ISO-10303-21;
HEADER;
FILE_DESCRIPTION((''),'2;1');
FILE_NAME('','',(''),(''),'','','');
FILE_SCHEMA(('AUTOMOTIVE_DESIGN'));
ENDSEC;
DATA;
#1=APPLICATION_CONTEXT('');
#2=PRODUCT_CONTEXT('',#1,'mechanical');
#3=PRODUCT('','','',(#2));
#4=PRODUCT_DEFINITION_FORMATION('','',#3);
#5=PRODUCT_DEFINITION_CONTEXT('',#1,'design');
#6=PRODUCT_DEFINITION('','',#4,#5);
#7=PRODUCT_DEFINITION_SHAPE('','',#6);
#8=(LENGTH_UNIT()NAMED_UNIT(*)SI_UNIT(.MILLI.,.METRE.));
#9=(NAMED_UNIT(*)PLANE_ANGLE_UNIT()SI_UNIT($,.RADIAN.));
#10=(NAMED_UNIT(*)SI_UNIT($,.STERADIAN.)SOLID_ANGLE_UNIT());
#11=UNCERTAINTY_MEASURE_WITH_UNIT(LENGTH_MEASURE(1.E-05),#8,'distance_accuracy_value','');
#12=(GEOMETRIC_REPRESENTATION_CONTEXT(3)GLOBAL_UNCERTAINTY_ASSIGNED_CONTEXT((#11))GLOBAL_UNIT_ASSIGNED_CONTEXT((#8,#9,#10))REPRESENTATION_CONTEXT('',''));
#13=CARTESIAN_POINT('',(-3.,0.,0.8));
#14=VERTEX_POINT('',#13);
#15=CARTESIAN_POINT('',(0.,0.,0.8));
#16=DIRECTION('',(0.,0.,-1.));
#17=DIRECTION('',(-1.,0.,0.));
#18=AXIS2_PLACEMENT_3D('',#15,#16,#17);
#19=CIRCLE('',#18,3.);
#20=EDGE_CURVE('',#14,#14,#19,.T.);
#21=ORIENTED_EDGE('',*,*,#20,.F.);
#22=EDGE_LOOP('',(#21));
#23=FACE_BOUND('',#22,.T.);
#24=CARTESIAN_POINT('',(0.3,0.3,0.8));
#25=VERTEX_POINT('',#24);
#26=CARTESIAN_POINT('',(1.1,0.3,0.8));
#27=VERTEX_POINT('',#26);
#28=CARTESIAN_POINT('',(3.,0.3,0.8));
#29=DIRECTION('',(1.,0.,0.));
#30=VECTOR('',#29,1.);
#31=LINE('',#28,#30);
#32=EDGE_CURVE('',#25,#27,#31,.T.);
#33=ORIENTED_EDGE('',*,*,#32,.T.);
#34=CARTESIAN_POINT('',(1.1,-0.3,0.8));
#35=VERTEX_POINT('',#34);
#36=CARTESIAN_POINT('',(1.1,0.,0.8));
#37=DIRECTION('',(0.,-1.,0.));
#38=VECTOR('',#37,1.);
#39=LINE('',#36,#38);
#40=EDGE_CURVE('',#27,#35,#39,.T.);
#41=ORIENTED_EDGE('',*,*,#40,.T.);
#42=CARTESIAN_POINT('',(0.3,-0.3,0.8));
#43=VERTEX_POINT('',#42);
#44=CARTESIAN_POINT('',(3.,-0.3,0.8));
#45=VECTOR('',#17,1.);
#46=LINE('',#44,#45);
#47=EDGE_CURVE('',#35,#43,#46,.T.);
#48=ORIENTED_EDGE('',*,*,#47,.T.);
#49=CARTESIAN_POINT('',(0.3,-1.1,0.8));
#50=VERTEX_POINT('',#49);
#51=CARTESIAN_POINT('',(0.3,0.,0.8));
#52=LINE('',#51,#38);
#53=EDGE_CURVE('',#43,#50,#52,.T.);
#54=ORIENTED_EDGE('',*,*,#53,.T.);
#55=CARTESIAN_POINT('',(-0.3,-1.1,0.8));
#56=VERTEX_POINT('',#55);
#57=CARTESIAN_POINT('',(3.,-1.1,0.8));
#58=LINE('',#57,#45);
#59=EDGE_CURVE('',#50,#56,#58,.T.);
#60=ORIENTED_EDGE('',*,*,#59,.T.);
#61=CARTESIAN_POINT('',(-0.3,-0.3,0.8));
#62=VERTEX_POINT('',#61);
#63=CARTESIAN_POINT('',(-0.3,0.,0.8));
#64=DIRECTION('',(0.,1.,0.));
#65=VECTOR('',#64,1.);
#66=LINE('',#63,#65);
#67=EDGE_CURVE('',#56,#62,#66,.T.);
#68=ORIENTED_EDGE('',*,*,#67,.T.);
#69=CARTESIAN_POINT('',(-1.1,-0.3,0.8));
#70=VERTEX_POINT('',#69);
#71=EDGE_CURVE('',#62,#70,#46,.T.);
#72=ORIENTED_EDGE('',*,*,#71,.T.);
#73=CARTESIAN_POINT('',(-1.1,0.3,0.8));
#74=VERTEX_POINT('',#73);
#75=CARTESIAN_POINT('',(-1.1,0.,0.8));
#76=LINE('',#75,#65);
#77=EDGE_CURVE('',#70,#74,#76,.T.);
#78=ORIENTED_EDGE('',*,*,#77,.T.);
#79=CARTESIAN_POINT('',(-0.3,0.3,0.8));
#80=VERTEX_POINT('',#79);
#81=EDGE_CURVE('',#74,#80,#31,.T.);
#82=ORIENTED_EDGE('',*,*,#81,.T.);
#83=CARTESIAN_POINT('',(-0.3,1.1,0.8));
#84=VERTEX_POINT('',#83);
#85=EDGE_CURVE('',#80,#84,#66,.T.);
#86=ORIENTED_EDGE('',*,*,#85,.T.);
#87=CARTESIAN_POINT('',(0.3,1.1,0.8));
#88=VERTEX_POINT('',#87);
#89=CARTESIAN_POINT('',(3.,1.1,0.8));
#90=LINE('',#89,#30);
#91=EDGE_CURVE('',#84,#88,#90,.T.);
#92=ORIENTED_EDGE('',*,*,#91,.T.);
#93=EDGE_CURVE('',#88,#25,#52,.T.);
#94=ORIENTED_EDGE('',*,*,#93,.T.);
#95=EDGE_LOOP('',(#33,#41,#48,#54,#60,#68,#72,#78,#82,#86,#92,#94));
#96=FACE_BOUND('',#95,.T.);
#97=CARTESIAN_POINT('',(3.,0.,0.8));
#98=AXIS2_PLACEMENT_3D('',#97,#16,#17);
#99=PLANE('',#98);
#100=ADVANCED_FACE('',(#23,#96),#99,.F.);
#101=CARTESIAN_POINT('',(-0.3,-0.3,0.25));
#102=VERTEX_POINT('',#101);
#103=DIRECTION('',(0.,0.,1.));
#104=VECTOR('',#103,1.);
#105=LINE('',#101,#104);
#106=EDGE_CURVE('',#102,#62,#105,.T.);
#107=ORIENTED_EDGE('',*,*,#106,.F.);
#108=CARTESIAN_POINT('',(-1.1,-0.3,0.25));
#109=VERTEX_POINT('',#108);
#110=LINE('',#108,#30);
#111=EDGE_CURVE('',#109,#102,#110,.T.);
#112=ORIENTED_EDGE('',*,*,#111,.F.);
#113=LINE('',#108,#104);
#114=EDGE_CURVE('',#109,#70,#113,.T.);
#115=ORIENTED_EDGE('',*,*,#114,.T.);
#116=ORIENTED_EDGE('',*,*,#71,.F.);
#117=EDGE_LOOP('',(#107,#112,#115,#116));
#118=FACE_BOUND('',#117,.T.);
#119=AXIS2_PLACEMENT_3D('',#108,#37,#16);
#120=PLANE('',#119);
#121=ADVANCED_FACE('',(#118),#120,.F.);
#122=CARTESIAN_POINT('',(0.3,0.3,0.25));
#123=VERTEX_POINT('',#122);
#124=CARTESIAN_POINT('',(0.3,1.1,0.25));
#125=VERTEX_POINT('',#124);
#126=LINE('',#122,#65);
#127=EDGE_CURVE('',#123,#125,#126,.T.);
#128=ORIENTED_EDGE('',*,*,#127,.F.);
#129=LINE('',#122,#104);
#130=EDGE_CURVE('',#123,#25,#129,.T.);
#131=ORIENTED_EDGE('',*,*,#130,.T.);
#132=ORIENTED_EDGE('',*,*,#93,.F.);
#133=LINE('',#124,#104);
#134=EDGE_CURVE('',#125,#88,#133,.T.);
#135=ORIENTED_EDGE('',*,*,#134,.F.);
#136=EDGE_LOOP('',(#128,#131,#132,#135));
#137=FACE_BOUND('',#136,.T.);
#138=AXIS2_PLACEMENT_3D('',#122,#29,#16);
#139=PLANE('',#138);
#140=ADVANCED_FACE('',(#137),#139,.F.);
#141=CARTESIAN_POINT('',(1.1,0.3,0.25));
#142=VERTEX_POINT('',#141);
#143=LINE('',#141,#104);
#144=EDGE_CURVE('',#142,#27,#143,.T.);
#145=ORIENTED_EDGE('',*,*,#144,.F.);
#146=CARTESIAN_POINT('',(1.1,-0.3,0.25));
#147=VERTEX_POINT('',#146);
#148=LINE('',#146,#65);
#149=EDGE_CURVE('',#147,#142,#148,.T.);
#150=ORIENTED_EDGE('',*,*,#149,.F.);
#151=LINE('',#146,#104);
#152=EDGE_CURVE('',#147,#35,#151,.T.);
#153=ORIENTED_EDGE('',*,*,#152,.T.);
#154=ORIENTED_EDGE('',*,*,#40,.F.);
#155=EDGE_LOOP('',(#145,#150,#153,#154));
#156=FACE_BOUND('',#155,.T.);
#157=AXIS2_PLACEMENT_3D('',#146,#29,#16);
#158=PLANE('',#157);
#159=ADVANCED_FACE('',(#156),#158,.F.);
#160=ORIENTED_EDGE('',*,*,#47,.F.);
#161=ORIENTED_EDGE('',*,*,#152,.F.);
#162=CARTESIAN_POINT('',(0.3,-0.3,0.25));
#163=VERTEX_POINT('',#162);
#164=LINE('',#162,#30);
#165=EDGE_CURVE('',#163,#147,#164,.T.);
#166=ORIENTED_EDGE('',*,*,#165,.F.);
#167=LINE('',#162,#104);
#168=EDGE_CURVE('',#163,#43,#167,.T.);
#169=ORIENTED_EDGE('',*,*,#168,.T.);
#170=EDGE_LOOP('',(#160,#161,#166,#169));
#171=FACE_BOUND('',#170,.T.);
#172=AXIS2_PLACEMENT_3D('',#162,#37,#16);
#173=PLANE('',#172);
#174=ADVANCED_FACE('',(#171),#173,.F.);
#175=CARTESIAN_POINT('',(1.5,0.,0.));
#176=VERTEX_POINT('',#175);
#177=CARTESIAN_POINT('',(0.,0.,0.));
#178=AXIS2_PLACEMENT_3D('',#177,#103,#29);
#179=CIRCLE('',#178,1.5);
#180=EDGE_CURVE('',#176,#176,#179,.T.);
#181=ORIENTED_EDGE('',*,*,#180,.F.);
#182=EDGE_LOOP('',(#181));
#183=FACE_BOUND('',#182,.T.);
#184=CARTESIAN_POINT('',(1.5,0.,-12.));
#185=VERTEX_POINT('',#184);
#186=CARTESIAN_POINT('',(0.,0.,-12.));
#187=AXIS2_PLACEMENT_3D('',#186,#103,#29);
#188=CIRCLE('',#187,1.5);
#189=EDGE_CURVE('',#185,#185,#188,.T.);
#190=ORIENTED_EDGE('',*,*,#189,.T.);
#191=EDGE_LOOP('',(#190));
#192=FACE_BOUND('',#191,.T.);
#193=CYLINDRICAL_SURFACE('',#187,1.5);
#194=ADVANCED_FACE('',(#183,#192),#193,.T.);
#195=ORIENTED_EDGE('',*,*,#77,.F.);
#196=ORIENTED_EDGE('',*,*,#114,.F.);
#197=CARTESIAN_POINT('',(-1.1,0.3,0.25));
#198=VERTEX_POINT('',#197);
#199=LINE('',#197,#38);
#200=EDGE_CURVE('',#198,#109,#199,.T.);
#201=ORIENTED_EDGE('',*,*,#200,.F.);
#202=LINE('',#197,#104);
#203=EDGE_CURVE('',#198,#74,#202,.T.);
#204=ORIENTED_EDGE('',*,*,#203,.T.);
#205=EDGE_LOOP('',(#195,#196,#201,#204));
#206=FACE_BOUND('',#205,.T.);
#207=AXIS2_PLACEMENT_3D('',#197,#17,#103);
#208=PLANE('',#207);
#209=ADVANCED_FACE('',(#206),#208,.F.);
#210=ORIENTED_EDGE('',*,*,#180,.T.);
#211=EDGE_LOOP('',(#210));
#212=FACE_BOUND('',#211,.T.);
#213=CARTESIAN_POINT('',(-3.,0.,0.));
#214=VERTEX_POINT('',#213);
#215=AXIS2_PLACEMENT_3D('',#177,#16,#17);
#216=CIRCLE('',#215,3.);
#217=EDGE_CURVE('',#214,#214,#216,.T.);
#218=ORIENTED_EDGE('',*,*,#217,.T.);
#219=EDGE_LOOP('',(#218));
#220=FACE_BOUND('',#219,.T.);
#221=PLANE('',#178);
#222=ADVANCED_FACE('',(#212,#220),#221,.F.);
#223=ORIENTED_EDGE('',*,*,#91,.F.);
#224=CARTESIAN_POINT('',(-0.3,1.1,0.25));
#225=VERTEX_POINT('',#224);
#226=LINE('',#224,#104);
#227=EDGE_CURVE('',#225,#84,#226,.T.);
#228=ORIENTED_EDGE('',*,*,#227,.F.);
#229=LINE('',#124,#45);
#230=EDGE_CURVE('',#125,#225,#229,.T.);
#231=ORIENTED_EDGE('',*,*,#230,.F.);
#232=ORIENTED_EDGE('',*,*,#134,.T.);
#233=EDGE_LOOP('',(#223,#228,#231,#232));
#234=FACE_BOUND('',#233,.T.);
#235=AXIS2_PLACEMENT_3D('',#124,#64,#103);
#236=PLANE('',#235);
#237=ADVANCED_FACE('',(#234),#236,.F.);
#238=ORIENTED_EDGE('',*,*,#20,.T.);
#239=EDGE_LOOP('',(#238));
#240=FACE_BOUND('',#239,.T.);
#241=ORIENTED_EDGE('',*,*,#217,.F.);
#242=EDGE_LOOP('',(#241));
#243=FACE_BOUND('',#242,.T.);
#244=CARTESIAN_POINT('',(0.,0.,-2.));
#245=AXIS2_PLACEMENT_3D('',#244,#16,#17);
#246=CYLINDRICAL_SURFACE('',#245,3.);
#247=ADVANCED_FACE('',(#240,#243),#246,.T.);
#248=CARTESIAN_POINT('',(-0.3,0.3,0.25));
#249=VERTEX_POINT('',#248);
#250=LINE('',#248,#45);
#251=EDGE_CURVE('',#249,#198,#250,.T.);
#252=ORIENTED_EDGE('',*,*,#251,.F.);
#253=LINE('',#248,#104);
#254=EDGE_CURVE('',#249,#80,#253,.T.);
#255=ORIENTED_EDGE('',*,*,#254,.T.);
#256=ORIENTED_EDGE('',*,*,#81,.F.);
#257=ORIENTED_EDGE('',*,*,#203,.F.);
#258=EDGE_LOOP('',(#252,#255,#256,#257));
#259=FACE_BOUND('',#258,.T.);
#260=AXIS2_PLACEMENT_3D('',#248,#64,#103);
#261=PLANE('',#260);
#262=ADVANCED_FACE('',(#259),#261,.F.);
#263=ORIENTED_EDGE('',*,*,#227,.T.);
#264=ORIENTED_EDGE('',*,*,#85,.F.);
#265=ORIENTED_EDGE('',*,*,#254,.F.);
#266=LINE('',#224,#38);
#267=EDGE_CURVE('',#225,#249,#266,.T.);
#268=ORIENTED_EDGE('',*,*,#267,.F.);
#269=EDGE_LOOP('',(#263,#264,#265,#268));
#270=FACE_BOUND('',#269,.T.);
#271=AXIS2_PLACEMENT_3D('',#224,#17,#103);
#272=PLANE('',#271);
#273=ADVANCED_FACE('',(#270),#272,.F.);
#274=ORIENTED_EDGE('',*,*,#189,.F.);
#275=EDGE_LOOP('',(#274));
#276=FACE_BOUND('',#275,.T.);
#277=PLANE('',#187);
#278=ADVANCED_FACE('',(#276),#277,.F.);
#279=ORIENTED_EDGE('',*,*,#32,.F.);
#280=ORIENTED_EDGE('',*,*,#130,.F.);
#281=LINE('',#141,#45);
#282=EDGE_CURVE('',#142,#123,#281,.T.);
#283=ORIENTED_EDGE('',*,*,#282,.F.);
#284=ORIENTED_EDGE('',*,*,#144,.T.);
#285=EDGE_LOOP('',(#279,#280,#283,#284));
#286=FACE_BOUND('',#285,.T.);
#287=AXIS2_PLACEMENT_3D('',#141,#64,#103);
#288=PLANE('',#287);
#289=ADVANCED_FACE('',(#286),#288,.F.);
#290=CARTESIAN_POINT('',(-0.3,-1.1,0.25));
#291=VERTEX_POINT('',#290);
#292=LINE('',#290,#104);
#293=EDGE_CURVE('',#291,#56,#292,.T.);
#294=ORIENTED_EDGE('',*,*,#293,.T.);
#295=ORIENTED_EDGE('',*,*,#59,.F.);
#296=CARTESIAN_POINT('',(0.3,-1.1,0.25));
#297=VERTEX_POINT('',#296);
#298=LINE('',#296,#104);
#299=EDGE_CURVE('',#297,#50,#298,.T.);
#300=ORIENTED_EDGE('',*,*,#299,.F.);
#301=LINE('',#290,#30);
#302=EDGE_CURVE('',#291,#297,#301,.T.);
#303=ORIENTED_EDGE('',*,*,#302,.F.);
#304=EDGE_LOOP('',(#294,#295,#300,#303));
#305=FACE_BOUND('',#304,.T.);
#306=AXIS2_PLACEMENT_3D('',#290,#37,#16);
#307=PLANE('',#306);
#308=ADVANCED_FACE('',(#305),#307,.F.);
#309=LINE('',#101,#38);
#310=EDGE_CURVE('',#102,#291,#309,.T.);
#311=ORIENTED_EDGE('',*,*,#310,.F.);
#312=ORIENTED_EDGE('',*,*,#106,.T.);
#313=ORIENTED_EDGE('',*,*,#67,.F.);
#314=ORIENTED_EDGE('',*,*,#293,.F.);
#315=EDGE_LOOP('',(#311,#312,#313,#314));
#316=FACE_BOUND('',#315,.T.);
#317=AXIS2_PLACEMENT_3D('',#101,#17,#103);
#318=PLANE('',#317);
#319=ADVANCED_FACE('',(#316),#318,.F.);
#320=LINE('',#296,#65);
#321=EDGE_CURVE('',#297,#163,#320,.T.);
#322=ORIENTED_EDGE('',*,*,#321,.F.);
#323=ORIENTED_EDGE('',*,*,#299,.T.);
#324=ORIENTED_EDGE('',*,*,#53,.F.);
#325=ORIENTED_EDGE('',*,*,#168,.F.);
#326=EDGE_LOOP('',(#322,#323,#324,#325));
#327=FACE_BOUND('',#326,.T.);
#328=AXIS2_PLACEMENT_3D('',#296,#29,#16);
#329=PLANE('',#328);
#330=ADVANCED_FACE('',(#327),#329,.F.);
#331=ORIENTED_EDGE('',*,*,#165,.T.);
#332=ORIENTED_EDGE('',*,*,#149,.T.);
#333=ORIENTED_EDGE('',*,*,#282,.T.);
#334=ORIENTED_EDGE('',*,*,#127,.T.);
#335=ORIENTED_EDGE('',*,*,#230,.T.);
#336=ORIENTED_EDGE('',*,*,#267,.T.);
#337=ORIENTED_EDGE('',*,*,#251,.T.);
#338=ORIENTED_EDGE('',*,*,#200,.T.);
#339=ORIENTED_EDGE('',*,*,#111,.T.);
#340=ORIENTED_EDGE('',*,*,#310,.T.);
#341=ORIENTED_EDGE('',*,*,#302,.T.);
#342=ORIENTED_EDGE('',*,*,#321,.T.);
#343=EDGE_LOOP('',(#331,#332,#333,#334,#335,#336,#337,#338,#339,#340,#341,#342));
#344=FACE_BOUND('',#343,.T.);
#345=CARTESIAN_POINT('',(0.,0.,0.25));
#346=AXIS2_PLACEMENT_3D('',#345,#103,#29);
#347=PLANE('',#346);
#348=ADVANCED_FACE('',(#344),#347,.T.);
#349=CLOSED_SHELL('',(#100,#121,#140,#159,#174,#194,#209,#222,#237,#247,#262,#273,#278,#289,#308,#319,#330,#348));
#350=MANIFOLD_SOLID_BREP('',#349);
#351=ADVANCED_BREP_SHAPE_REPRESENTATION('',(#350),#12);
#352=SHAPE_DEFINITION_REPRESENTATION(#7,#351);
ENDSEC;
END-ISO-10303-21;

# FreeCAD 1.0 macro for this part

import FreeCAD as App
import Part
import Sketcher

V = App.Vector
Q = App.Units.Quantity

doc = App.newDocument("Part")
body = doc.addObject("PartDesign::Body", "Body")

# Sketch on XY plane
sketch1 = body.newObject("Sketcher::SketchObject", "Sketch")
sketch1.AttachmentSupport = (doc.getObject("XY_Plane"), [""])
sketch1.MapMode = "FlatFace"
sketch1.addGeometry(Part.Circle(V(0, 0, 0), V(0, 0, 1), 1.5), False)
sketch1.addConstraint(Sketcher.Constraint("Coincident", 0, 3, -1, 1))
sketch1.addConstraint(Sketcher.Constraint("Diameter", 0, Q("3 mm")))
pad1 = body.newObject("PartDesign::Pad", "Pad")
pad1.Profile = sketch1
pad1.Length = 12
pad1.Reversed = True

# Sketch on XZ plane
sketch2 = body.newObject("Sketcher::SketchObject", "Sketch001")
sketch2.AttachmentSupport = (doc.getObject("XZ_Plane"), [""])
sketch2.MapMode = "FlatFace"
sketch2.addGeometry(Part.LineSegment(V(0, 0, 0), V(0, 0.8, 0)), False)
sketch2.addGeometry(Part.LineSegment(V(0, 0.8, 0), V(3, 0.8, 0)), False)
sketch2.addGeometry(Part.LineSegment(V(3, 0.8, 0), V(3, 0, 0)), False)
sketch2.addGeometry(Part.LineSegment(V(3, 0, 0), V(0, 0, 0)), False)
sketch2.addConstraint(Sketcher.Constraint("Coincident", 0, 2, 1, 1))
sketch2.addConstraint(Sketcher.Constraint("Coincident", 1, 2, 2, 1))
sketch2.addConstraint(Sketcher.Constraint("Coincident", 2, 2, 3, 1))
sketch2.addConstraint(Sketcher.Constraint("Coincident", 3, 2, 0, 1))
sketch2.addConstraint(Sketcher.Constraint("Vertical", 0))
sketch2.addConstraint(Sketcher.Constraint("Horizontal", 1))
sketch2.addConstraint(Sketcher.Constraint("Vertical", 2))
sketch2.addConstraint(Sketcher.Constraint("Horizontal", 3))
sketch2.addConstraint(Sketcher.Constraint("Coincident", 3, 2, -1, 1))
sketch2.addConstraint(Sketcher.Constraint("DistanceX", 1, 1, 1, 2, Q("3 mm")))
sketch2.addConstraint(Sketcher.Constraint("DistanceY", 0, 1, 0, 2, Q("0.8 mm")))
revolution = body.newObject("PartDesign::Revolution", "Revolution")
revolution.Profile = sketch2
revolution.ReferenceAxis = (sketch2, ["V_Axis"])
revolution.Angle = 360

# Sketch on XY plane
sketch3 = body.newObject("Sketcher::SketchObject", "Sketch002")
sketch3.AttachmentSupport = (doc.getObject("XY_Plane"), [""])
sketch3.MapMode = "FlatFace"
sketch3.AttachmentOffset = App.Placement(V(0, 0, 0.81), App.Rotation())
sketch3.addGeometry(Part.LineSegment(V(-0.3, -1.1, 0), V(0.3, -1.1, 0)), False)
sketch3.addGeometry(Part.LineSegment(V(0.3, -1.1, 0), V(0.3, -0.3, 0)), False)
sketch3.addGeometry(Part.LineSegment(V(0.3, -0.3, 0), V(1.1, -0.3, 0)), False)
sketch3.addGeometry(Part.LineSegment(V(1.1, -0.3, 0), V(1.1, 0.3, 0)), False)
sketch3.addGeometry(Part.LineSegment(V(1.1, 0.3, 0), V(0.3, 0.3, 0)), False)
sketch3.addGeometry(Part.LineSegment(V(0.3, 0.3, 0), V(0.3, 1.1, 0)), False)
sketch3.addGeometry(Part.LineSegment(V(0.3, 1.1, 0), V(-0.3, 1.1, 0)), False)
sketch3.addGeometry(Part.LineSegment(V(-0.3, 1.1, 0), V(-0.3, 0.3, 0)), False)
sketch3.addGeometry(Part.LineSegment(V(-0.3, 0.3, 0), V(-1.1, 0.3, 0)), False)
sketch3.addGeometry(Part.LineSegment(V(-1.1, 0.3, 0), V(-1.1, -0.3, 0)), False)
sketch3.addGeometry(Part.LineSegment(V(-1.1, -0.3, 0), V(-0.3, -0.3, 0)), False)
sketch3.addGeometry(Part.LineSegment(V(-0.3, -0.3, 0), V(-0.3, -1.1, 0)), False)
sketch3.addConstraint(Sketcher.Constraint("Coincident", 0, 2, 1, 1))
sketch3.addConstraint(Sketcher.Constraint("Coincident", 1, 2, 2, 1))
sketch3.addConstraint(Sketcher.Constraint("Coincident", 2, 2, 3, 1))
sketch3.addConstraint(Sketcher.Constraint("Coincident", 3, 2, 4, 1))
sketch3.addConstraint(Sketcher.Constraint("Coincident", 4, 2, 5, 1))
sketch3.addConstraint(Sketcher.Constraint("Coincident", 5, 2, 6, 1))
sketch3.addConstraint(Sketcher.Constraint("Coincident", 6, 2, 7, 1))
sketch3.addConstraint(Sketcher.Constraint("Coincident", 7, 2, 8, 1))
sketch3.addConstraint(Sketcher.Constraint("Coincident", 8, 2, 9, 1))
sketch3.addConstraint(Sketcher.Constraint("Coincident", 9, 2, 10, 1))
sketch3.addConstraint(Sketcher.Constraint("Coincident", 10, 2, 11, 1))
sketch3.addConstraint(Sketcher.Constraint("Coincident", 11, 2, 0, 1))
sketch3.addConstraint(Sketcher.Constraint("Horizontal", 0))
sketch3.addConstraint(Sketcher.Constraint("Vertical", 1))
sketch3.addConstraint(Sketcher.Constraint("Horizontal", 2))
sketch3.addConstraint(Sketcher.Constraint("Vertical", 3))
sketch3.addConstraint(Sketcher.Constraint("Horizontal", 4))
sketch3.addConstraint(Sketcher.Constraint("Vertical", 5))
sketch3.addConstraint(Sketcher.Constraint("Horizontal", 6))
sketch3.addConstraint(Sketcher.Constraint("Vertical", 7))
sketch3.addConstraint(Sketcher.Constraint("Horizontal", 8))
sketch3.addConstraint(Sketcher.Constraint("Vertical", 9))
sketch3.addConstraint(Sketcher.Constraint("Horizontal", 10))
sketch3.addConstraint(Sketcher.Constraint("Vertical", 11))
sketch3.addConstraint(Sketcher.Constraint("Symmetric", 0, 2, 6, 2, -1, 1))
sketch3.addConstraint(Sketcher.Constraint("Symmetric", 2, 2, 8, 2, -1, 1))
sketch3.addConstraint(Sketcher.Constraint("Symmetric", 4, 2, 10, 2, -1, 1))
sketch3.addConstraint(Sketcher.Constraint("Symmetric", 4, 2, 7, 2, -2))
sketch3.addConstraint(Sketcher.Constraint("Equal", 10, 1))
sketch3.addConstraint(Sketcher.Constraint("Equal", 6, 3))
sketch3.addConstraint(Sketcher.Constraint("DistanceX", 0, 1, 0, 2, Q("0.6 mm")))
sketch3.addConstraint(Sketcher.Constraint("DistanceX", 2, 1, 2, 2, Q("0.8 mm")))
pocket1 = body.newObject("PartDesign::Pocket", "Pocket")
pocket1.Profile = sketch3
pocket1.Length = 0.56

doc.recompute()
